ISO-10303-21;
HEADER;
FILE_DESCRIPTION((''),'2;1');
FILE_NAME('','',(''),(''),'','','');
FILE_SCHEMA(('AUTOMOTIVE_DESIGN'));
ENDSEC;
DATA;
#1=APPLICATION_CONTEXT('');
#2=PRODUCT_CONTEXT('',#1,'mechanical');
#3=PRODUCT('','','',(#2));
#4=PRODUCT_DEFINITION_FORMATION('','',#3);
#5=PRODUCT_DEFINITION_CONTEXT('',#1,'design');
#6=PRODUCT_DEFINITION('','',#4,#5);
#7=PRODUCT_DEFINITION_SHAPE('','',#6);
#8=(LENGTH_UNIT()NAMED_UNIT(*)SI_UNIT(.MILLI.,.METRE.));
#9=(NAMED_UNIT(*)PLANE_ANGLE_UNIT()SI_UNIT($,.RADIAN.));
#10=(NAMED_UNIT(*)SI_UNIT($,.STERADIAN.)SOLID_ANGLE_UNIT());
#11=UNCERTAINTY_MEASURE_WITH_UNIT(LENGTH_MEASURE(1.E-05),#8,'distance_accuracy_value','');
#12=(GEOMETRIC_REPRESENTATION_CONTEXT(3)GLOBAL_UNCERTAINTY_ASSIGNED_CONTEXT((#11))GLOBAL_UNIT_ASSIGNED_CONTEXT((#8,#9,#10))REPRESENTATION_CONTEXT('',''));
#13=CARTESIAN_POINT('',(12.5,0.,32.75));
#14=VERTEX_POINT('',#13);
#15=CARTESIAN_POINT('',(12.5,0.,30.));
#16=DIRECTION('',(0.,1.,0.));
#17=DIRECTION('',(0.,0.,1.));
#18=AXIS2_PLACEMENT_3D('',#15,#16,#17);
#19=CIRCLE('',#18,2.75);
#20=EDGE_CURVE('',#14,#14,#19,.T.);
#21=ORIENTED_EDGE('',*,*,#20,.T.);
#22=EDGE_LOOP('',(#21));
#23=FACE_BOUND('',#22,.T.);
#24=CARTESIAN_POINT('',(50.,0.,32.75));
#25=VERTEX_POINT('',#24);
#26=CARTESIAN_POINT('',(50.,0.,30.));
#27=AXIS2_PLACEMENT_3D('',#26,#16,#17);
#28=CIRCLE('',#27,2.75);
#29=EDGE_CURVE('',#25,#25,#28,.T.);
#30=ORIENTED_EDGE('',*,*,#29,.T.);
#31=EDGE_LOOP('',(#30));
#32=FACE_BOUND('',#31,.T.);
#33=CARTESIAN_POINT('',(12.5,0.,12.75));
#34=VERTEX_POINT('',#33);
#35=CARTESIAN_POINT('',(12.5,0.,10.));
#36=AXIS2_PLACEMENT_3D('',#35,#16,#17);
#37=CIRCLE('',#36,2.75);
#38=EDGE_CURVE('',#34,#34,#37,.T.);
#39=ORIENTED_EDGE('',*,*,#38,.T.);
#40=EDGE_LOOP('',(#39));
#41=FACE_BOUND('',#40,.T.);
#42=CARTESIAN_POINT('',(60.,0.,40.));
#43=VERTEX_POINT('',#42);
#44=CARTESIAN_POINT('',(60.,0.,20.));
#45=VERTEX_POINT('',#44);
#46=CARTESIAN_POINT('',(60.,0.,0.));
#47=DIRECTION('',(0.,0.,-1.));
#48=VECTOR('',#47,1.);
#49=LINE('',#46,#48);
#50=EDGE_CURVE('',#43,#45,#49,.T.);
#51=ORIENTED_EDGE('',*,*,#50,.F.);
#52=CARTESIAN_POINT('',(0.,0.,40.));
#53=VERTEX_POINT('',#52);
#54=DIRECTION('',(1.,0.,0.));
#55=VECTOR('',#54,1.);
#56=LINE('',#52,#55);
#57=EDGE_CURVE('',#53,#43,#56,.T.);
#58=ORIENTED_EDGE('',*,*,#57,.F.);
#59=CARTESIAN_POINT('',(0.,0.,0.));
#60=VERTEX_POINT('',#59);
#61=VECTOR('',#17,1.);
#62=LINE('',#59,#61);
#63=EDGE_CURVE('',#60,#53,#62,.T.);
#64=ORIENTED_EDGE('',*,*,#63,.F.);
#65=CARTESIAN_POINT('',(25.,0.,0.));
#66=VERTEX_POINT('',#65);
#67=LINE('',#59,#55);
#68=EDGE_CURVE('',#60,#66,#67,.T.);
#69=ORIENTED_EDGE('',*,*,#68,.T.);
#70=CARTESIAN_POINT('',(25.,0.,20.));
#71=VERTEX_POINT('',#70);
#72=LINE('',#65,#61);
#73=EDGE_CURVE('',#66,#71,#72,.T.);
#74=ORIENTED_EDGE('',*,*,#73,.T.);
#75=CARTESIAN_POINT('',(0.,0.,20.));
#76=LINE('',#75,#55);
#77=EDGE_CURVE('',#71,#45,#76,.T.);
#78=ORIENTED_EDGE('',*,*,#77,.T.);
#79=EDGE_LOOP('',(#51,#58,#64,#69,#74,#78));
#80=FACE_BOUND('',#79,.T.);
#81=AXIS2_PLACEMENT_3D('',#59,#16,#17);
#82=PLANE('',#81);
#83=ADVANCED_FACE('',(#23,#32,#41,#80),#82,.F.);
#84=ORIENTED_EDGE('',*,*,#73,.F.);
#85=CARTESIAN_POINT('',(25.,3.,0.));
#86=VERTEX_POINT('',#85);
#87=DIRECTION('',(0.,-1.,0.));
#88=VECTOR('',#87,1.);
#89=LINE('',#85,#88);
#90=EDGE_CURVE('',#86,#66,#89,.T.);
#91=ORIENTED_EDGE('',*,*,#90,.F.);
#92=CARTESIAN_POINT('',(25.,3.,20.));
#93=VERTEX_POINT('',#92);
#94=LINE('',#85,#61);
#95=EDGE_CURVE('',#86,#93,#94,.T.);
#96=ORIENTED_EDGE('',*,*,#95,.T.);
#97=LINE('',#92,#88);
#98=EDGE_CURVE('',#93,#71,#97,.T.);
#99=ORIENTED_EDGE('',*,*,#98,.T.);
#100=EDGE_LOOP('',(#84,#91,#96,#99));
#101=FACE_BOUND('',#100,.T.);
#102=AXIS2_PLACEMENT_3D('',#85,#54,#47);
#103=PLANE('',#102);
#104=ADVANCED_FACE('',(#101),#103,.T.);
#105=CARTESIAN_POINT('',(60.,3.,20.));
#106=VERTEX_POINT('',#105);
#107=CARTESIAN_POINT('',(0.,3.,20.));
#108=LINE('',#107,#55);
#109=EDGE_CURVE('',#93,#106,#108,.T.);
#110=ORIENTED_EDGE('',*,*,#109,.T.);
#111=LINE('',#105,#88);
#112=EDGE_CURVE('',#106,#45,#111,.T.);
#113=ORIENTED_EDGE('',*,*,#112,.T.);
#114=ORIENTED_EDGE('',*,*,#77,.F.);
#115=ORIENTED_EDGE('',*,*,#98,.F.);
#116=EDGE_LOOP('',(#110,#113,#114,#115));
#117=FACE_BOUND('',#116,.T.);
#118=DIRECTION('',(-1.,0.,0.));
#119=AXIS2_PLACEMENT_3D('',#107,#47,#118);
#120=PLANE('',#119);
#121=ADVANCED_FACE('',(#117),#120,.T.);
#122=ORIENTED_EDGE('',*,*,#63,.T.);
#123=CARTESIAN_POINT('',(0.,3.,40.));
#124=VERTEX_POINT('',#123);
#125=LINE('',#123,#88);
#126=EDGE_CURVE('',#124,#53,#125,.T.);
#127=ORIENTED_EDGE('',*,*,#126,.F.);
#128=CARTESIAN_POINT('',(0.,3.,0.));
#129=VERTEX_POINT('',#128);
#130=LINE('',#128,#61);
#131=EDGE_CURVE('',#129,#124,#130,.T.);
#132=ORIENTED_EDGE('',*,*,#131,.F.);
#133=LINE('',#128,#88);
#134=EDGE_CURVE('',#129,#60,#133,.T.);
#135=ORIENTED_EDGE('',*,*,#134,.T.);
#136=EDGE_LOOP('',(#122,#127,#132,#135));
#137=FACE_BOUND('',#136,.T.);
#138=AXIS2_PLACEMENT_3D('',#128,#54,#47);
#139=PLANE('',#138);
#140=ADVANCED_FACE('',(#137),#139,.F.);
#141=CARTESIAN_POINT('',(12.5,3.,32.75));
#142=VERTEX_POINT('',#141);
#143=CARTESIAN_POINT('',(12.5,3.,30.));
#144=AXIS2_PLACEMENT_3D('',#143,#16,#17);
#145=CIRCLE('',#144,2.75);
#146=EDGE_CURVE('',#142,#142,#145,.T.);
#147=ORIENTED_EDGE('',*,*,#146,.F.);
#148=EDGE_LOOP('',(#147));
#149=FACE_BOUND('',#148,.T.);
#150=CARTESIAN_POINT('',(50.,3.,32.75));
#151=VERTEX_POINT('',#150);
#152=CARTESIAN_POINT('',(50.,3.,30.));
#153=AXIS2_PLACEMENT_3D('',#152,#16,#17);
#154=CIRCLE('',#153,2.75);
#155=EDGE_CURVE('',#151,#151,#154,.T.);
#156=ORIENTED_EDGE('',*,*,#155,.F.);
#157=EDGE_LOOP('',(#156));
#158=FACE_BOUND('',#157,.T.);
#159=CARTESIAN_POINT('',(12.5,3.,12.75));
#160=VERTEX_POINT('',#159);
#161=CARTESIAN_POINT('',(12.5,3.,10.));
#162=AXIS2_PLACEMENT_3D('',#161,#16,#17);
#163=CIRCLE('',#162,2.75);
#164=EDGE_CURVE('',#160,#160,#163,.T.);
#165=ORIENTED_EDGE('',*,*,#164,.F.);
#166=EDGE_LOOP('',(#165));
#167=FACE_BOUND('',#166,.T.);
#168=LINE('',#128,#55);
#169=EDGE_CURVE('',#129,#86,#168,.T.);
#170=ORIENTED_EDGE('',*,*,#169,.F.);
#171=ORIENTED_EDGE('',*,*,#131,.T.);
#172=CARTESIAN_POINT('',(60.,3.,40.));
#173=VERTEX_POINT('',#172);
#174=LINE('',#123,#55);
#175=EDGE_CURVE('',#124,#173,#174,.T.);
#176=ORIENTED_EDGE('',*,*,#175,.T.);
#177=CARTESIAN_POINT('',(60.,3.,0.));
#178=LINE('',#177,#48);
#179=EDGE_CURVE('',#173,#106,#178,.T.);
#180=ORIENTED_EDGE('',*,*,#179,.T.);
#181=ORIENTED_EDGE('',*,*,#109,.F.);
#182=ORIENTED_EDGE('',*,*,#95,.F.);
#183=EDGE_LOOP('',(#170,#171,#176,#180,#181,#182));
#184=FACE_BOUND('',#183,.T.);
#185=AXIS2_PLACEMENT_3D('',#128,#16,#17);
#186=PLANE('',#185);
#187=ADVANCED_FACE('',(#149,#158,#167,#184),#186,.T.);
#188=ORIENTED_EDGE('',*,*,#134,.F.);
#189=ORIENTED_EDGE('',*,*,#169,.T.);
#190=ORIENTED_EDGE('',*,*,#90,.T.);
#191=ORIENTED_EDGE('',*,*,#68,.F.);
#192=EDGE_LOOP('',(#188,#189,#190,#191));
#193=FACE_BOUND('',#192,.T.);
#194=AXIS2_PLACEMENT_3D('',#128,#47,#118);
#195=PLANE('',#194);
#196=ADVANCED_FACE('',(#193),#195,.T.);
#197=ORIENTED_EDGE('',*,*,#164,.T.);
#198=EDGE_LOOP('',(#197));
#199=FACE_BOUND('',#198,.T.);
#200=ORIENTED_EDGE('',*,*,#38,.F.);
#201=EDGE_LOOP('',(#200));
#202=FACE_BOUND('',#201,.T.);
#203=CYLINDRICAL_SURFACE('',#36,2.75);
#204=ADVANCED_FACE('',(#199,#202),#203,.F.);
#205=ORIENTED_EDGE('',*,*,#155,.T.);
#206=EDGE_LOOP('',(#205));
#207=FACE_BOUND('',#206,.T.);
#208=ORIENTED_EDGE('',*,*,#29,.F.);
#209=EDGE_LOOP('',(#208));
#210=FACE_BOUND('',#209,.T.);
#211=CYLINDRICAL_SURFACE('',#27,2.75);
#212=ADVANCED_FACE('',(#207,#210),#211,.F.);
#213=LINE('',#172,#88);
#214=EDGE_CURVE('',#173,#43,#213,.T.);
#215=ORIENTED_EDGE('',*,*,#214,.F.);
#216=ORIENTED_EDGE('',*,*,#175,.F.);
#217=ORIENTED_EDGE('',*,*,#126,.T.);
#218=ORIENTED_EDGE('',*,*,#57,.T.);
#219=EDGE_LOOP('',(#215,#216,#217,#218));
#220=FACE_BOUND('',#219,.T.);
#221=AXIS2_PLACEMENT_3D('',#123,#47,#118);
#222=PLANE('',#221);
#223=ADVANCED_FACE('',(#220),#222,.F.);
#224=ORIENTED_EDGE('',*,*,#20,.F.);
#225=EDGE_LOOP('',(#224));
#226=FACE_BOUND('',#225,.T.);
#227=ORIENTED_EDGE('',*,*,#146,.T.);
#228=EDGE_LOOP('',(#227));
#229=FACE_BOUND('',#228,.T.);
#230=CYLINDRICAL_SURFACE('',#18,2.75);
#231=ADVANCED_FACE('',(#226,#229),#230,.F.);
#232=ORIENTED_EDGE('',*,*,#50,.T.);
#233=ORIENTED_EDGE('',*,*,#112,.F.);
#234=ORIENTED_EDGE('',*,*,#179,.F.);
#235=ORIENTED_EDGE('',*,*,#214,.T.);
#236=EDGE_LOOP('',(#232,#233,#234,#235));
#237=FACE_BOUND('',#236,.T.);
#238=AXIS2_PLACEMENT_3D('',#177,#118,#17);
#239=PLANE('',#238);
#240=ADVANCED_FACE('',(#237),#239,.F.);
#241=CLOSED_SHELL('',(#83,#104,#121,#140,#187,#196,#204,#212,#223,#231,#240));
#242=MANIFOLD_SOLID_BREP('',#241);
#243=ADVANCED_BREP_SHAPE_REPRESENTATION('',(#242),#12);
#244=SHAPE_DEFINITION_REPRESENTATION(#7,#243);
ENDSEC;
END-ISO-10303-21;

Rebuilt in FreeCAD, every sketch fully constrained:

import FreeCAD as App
import Part
import Sketcher
from FreeCAD import Vector
Q = App.Units.Quantity

doc = App.newDocument("Part")
body = doc.addObject("PartDesign::Body", "Body")

# Sketch on XZ plane
sketch1 = body.newObject("Sketcher::SketchObject", "Sketch")
sketch1.AttachmentSupport = (doc.getObject("XZ_Plane"), [""])
sketch1.MapMode = "FlatFace"
sketch1.addGeometry([
    Part.LineSegment(Vector(0, 0, 0), Vector(0, 40, 0)),  # 0
    Part.LineSegment(Vector(0, 40, 0), Vector(60, 40, 0)),  # 1
    Part.LineSegment(Vector(60, 40, 0), Vector(60, 20, 0)),  # 2
    Part.LineSegment(Vector(60, 20, 0), Vector(25, 20, 0)),  # 3
    Part.LineSegment(Vector(25, 20, 0), Vector(25, 0, 0)),  # 4
    Part.LineSegment(Vector(25, 0, 0), Vector(0, 0, 0)),  # 5
], False)
sketch1.addConstraint([
    Sketcher.Constraint("Coincident", 0, 2, 1, 1),
    Sketcher.Constraint("Coincident", 1, 2, 2, 1),
    Sketcher.Constraint("Coincident", 2, 2, 3, 1),
    Sketcher.Constraint("Coincident", 3, 2, 4, 1),
    Sketcher.Constraint("Coincident", 4, 2, 5, 1),
    Sketcher.Constraint("Coincident", 5, 2, 0, 1),
    Sketcher.Constraint("Vertical", 0),
    Sketcher.Constraint("Horizontal", 1),
    Sketcher.Constraint("Vertical", 2),
    Sketcher.Constraint("Horizontal", 3),
    Sketcher.Constraint("Vertical", 4),
    Sketcher.Constraint("Horizontal", 5),
    Sketcher.Constraint("Coincident", 5, 2, -1, 1),
    Sketcher.Constraint("Equal", 2, 4),
    Sketcher.Constraint("DistanceX", 1, 1, 1, 2, Q("60 mm")),
    Sketcher.Constraint("DistanceX", 3, 2, 3, 1, Q("35 mm")),
    Sketcher.Constraint("DistanceY", 0, 1, 0, 2, Q("40 mm")),
])
pad1 = body.newObject("PartDesign::Pad", "Pad")
pad1.Profile = sketch1
pad1.Length = 3
pad1.Reversed = True

# Sketch on XZ plane
sketch2 = body.newObject("Sketcher::SketchObject", "Sketch001")
sketch2.AttachmentSupport = (doc.getObject("XZ_Plane"), [""])
sketch2.MapMode = "FlatFace"
sketch2.AttachmentOffset = App.Placement(Vector(0, 0, -3), App.Rotation())
sketch2.addGeometry([
    Part.Circle(Vector(12.5, 10, 0), Vector(0, 0, 1), 2.8),
    Part.Circle(Vector(12.5, 30, 0), Vector(0, 0, 1), 2.8),
    Part.Circle(Vector(50, 30, 0), Vector(0, 0, 1), 2.8),
], False)
sketch2.addConstraint([
    Sketcher.Constraint("Equal", 0, 1),
    Sketcher.Constraint("Equal", 1, 2),
    Sketcher.Constraint("Horizontal", 1, 3, 2, 3),
    Sketcher.Constraint("Vertical", 0, 3, 1, 3),
    Sketcher.Constraint("Diameter", 0, Q("5.5 mm")),
    Sketcher.Constraint("DistanceY", -1, 1, 0, 3, Q("10 mm")),
    Sketcher.Constraint("DistanceY", -1, 1, 1, 3, Q("30 mm")),
    Sketcher.Constraint("DistanceX", -1, 1, 2, 3, Q("50 mm")),
    Sketcher.Constraint("DistanceX", -1, 1, 0, 3, Q("12.5 mm")),
])
pocket1 = body.newObject("PartDesign::Pocket", "Pocket")
pocket1.Profile = sketch2
pocket1.Length = 3
pocket1.Reversed = True

doc.recompute()
